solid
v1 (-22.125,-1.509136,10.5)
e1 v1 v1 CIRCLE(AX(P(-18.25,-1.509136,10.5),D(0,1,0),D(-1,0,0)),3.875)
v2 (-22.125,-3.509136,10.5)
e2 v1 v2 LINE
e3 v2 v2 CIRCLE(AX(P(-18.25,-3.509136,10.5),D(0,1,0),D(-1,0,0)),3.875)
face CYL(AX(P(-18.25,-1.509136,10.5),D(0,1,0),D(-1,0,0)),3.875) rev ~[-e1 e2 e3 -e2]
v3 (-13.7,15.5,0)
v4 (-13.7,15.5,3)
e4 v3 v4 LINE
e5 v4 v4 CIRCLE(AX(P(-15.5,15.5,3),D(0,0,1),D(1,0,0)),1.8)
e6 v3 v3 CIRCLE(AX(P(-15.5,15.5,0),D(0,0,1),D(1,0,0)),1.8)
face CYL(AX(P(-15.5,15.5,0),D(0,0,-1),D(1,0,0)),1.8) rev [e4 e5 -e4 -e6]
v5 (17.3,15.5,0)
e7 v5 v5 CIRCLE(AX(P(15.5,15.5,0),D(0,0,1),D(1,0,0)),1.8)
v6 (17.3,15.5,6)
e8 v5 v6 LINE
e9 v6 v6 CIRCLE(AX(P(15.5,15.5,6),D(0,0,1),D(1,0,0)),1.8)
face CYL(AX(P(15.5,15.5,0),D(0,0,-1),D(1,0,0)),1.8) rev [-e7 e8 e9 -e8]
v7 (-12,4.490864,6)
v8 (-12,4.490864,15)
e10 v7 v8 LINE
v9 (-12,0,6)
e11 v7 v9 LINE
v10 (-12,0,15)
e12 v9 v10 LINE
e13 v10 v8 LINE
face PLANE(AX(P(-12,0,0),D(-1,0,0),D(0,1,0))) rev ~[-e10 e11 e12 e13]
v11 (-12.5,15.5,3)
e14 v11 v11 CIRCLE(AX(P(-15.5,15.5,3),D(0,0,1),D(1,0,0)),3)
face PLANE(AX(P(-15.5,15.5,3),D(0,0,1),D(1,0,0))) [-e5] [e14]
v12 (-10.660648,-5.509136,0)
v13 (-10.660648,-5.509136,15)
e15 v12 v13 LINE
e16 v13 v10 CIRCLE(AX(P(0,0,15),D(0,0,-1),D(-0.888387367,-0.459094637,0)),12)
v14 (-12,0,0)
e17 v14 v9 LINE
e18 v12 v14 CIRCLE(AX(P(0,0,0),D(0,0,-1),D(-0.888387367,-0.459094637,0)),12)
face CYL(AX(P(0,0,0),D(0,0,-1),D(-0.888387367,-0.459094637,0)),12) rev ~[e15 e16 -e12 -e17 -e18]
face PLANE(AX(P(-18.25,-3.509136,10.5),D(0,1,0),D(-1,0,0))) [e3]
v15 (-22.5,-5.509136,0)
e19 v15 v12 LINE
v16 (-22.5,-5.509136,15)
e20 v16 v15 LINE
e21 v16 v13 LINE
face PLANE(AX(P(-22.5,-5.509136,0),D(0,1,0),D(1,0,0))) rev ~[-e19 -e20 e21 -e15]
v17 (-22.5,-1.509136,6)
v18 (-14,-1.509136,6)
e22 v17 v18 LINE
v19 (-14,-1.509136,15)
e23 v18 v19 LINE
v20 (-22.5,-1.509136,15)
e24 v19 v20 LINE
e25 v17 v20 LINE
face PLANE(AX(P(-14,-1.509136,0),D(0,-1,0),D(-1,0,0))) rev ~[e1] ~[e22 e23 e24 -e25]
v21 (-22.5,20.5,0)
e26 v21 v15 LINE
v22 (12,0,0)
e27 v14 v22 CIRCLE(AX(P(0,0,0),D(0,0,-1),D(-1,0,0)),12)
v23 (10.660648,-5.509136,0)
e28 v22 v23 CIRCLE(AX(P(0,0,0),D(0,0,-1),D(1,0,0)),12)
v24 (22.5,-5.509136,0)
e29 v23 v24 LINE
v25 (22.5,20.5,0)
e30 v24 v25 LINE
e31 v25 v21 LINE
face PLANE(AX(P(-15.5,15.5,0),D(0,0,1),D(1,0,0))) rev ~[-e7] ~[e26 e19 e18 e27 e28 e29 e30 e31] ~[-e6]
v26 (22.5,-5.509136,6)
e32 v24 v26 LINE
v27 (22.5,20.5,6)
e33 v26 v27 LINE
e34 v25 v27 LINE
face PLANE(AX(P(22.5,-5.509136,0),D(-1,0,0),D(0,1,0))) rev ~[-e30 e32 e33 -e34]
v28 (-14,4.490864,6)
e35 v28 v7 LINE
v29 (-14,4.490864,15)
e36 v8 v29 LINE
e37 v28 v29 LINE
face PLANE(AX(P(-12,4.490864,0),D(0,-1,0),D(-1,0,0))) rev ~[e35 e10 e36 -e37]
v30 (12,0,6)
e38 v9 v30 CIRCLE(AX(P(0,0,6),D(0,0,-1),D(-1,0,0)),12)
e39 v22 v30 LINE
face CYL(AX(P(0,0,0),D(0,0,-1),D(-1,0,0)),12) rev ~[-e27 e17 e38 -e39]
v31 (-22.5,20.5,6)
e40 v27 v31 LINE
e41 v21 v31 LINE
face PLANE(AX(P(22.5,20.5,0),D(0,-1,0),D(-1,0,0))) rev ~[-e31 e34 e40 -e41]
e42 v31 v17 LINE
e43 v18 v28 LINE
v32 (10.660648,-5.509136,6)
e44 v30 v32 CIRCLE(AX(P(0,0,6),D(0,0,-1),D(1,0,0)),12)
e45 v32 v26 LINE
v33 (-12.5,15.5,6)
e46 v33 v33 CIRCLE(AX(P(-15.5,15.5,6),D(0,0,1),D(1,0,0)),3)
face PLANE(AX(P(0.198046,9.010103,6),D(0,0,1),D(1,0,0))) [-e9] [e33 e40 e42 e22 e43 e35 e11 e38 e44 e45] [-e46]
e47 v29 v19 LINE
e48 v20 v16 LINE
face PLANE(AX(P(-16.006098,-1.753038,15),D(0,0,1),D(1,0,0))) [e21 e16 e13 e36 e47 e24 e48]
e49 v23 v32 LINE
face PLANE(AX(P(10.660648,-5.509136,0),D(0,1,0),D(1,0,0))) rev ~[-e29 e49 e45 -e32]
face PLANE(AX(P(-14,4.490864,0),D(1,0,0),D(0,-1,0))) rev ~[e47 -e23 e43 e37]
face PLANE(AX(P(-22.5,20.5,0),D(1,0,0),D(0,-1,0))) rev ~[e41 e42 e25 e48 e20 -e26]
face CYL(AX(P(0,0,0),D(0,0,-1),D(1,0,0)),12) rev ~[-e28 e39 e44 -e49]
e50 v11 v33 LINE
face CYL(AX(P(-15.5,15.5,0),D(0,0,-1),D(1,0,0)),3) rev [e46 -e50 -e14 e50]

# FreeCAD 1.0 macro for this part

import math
import FreeCAD as App
import Part
import Sketcher

V = App.Vector
Q = App.Units.Quantity

doc = App.newDocument("Part")
params = doc.addObject("Spreadsheet::Sheet", "Params")
for row, (alias, value) in enumerate([
    ("sketch1_diameter", "6 mm"),
    ("sketch1_radius", "12 mm"),
    ("sketch1_diameter2", "3.6 mm"),
    ("sketch1_width", "45 mm"),
    ("pad1_length", "6 mm"),
    ("sketch2_radius", "12 mm"),
    ("sketch2_width", "2 mm"),
    ("sketch2_height", "4 mm"),
    ("sketch2_height2", "6 mm"),
    ("sketch2_width2", "8.5 mm"),
    ("pad2_length", "15 mm"),
    ("sketch3_diameter", "6 mm"),
    ("sketch3_diameter2", "3.6 mm"),
    ("pad3_length", "3 mm"),
    ("sketch4_diameter", "7.75 mm"),
    ("pocket1_length", "2 mm"),
], start=1):
    params.set(f"A{row}", alias)
    params.set(f"B{row}", "=" + value)
    params.setAlias(f"B{row}", alias)

body = doc.addObject("PartDesign::Body", "Body")

# Sketch on XY plane
sketch1 = body.newObject("Sketcher::SketchObject", "Sketch")
sketch1.AttachmentSupport = (doc.getObject("XY_Plane"), [""])
sketch1.MapMode = "FlatFace"
sketch1.addGeometry([
    Part.ArcOfCircle(Part.Circle(V(0, 0, 0), V(0, 0, 1), 12), math.radians(-27.328701), math.radians(0)),  # 0
    Part.LineSegment(V(10.660648, -5.509136, 0), V(22.5, -5.509136, 0)),  # 1
    Part.LineSegment(V(22.5, -5.509136, 0), V(22.5, 20.5, 0)),  # 2
    Part.LineSegment(V(22.5, 20.5, 0), V(-22.5, 20.5, 0)),  # 3
    Part.LineSegment(V(-22.5, 20.5, 0), V(-22.5, -5.509136, 0)),  # 4
    Part.LineSegment(V(-22.5, -5.509136, 0), V(-12, -5.509136, 0)),  # 5
    Part.LineSegment(V(-12, -5.509136, 0), V(-12, 0, 0)),  # 6
    Part.ArcOfCircle(Part.Circle(V(0, 0, 0), V(0, 0, 1), 12), math.radians(0), math.radians(180)),  # 7
    Part.Circle(V(-15.5, 15.5, 0), V(0, 0, 1), 3),  # 8
    Part.Circle(V(15.5, 15.5, 0), V(0, 0, 1), 1.8),  # 9
], False)
sketch1.addConstraint([
    Sketcher.Constraint("Coincident", 0, 1, 1, 1),
    Sketcher.Constraint("Coincident", 1, 2, 2, 1),
    Sketcher.Constraint("Coincident", 2, 2, 3, 1),
    Sketcher.Constraint("Coincident", 3, 2, 4, 1),
    Sketcher.Constraint("Coincident", 4, 2, 5, 1),
    Sketcher.Constraint("Coincident", 5, 2, 6, 1),
    Sketcher.Constraint("Tangent", 6, 2, 7, 2),
    Sketcher.Constraint("Tangent", 7, 1, 0, 2),
    Sketcher.Constraint("Horizontal", 1),
    Sketcher.Constraint("Vertical", 2),
    Sketcher.Constraint("Horizontal", 3),
    Sketcher.Constraint("Vertical", 4),
    Sketcher.Constraint("Horizontal", 5),
    Sketcher.Constraint("Vertical", 6),
    Sketcher.Constraint("Coincident", 0, 3, -1, 1),
    Sketcher.Constraint("Equal", 0, 7),
    Sketcher.Constraint("Symmetric", 8, 3, 9, 3, -2),
    Sketcher.Constraint("Symmetric", 1, 2, 4, 2, -2),
    Sketcher.Constraint("PointOnObject", 7, 1, -1),
    Sketcher.Constraint("Diameter", 8, Q("6 mm")),
    Sketcher.Constraint("Radius", 0, Q("12 mm")),
    Sketcher.Constraint("Diameter", 9, Q("3.6 mm")),
    Sketcher.Constraint("DistanceX", 3, 2, 3, 1, Q("45 mm")),
    Sketcher.Constraint("DistanceX", 8, 3, 9, 3, Q("31 mm")),
    Sketcher.Constraint("DistanceY", 9, 3, 2, 2, Q("5 mm")),
    Sketcher.Constraint("DistanceY", -1, 1, 8, 3, Q("15.5 mm")),
    Sketcher.Constraint("DistanceX", 1, 1, 1, 2, Q("11.839352 mm")),
])
sketch1.setExpression("Constraints[19]", "Params.sketch1_diameter")
sketch1.setExpression("Constraints[20]", "Params.sketch1_radius")
sketch1.setExpression("Constraints[21]", "Params.sketch1_diameter2")
sketch1.setExpression("Constraints[22]", "Params.sketch1_width")
pad1 = body.newObject("PartDesign::Pad", "Pad")
pad1.Profile = sketch1
pad1.setExpression("Length", "Params.pad1_length")

# Sketch on XY plane
sketch2 = body.newObject("Sketcher::SketchObject", "Sketch001")
sketch2.AttachmentSupport = (doc.getObject("XY_Plane"), [""])
sketch2.MapMode = "FlatFace"
sketch2.addGeometry([
    Part.LineSegment(V(-14, -1.509136, 0), V(-22.5, -1.509136, 0)),  # 0
    Part.LineSegment(V(-22.5, -1.509136, 0), V(-22.5, -5.509136, 0)),  # 1
    Part.LineSegment(V(-22.5, -5.509136, 0), V(-10.660648, -5.509136, 0)),  # 2
    Part.ArcOfCircle(Part.Circle(V(0, 0, 0), V(0, 0, 1), 12), math.radians(180), math.radians(207.328701)),  # 3
    Part.LineSegment(V(-12, 0, 0), V(-12, 4.490864, 0)),  # 4
    Part.LineSegment(V(-12, 4.490864, 0), V(-14, 4.490864, 0)),  # 5
    Part.LineSegment(V(-14, 4.490864, 0), V(-14, -1.509136, 0)),  # 6
], False)
sketch2.addConstraint([
    Sketcher.Constraint("Coincident", 0, 2, 1, 1),
    Sketcher.Constraint("Coincident", 1, 2, 2, 1),
    Sketcher.Constraint("Coincident", 2, 2, 3, 2),
    Sketcher.Constraint("Tangent", 3, 1, 4, 1),
    Sketcher.Constraint("Coincident", 4, 2, 5, 1),
    Sketcher.Constraint("Coincident", 5, 2, 6, 1),
    Sketcher.Constraint("Coincident", 6, 2, 0, 1),
    Sketcher.Constraint("Horizontal", 0),
    Sketcher.Constraint("Vertical", 1),
    Sketcher.Constraint("Horizontal", 2),
    Sketcher.Constraint("Vertical", 4),
    Sketcher.Constraint("Horizontal", 5),
    Sketcher.Constraint("Vertical", 6),
    Sketcher.Constraint("Coincident", 3, 3, -1, 1),
    Sketcher.Constraint("Radius", 3, Q("12 mm")),
    Sketcher.Constraint("DistanceX", 5, 2, 5, 1, Q("2 mm")),
    Sketcher.Constraint("DistanceY", 1, 2, 1, 1, Q("4 mm")),
    Sketcher.Constraint("DistanceY", 6, 2, 6, 1, Q("6 mm")),
    Sketcher.Constraint("DistanceX", 0, 2, 0, 1, Q("8.5 mm")),
    Sketcher.Constraint("DistanceX", 2, 1, 2, 2, Q("11.839352 mm")),
])
sketch2.setExpression("Constraints[14]", "Params.sketch2_radius")
sketch2.setExpression("Constraints[15]", "Params.sketch2_width")
sketch2.setExpression("Constraints[16]", "Params.sketch2_height")
sketch2.setExpression("Constraints[17]", "Params.sketch2_height2")
sketch2.setExpression("Constraints[18]", "Params.sketch2_width2")
pad2 = body.newObject("PartDesign::Pad", "Pad001")
pad2.Profile = sketch2
pad2.setExpression("Length", "Params.pad2_length")

# Sketch on XY plane
sketch3 = body.newObject("Sketcher::SketchObject", "Sketch002")
sketch3.AttachmentSupport = (doc.getObject("XY_Plane"), [""])
sketch3.MapMode = "FlatFace"
sketch3.addGeometry([
    Part.Circle(V(-15.5, 15.5, 0), V(0, 0, 1), 3),
    Part.Circle(V(-15.5, 15.5, 0), V(0, 0, 1), 1.8),
], False)
sketch3.addConstraint([
    Sketcher.Constraint("Coincident", 1, 3, 0, 3),
    Sketcher.Constraint("Diameter", 0, Q("6 mm")),
    Sketcher.Constraint("Diameter", 1, Q("3.6 mm")),
    Sketcher.Constraint("DistanceX", 0, 3, -1, 1, Q("15.5 mm")),
    Sketcher.Constraint("DistanceY", -1, 1, 0, 3, Q("15.5 mm")),
])
sketch3.setExpression("Constraints[1]", "Params.sketch3_diameter")
sketch3.setExpression("Constraints[2]", "Params.sketch3_diameter2")
pad3 = body.newObject("PartDesign::Pad", "Pad002")
pad3.Profile = sketch3
pad3.setExpression("Length", "Params.pad3_length")

# Sketch on XZ plane
sketch4 = body.newObject("Sketcher::SketchObject", "Sketch003")
sketch4.AttachmentSupport = (doc.getObject("XZ_Plane"), [""])
sketch4.MapMode = "FlatFace"
sketch4.AttachmentOffset = App.Placement(V(0, 0, 1.509136), App.Rotation())
sketch4.addGeometry(Part.Circle(V(-18.25, 10.5, 0), V(0, 0, 1), 3.875), False)
sketch4.addConstraint([
    Sketcher.Constraint("Diameter", 0, Q("7.75 mm")),
    Sketcher.Constraint("DistanceY", -1, 1, 0, 3, Q("10.5 mm")),
    Sketcher.Constraint("DistanceX", 0, 3, -1, 1, Q("18.25 mm")),
])
sketch4.setExpression("Constraints[0]", "Params.sketch4_diameter")
pocket1 = body.newObject("PartDesign::Pocket", "Pocket")
pocket1.Profile = sketch4
pocket1.setExpression("Length", "Params.pocket1_length")
pocket1.Reversed = True

doc.recompute()
